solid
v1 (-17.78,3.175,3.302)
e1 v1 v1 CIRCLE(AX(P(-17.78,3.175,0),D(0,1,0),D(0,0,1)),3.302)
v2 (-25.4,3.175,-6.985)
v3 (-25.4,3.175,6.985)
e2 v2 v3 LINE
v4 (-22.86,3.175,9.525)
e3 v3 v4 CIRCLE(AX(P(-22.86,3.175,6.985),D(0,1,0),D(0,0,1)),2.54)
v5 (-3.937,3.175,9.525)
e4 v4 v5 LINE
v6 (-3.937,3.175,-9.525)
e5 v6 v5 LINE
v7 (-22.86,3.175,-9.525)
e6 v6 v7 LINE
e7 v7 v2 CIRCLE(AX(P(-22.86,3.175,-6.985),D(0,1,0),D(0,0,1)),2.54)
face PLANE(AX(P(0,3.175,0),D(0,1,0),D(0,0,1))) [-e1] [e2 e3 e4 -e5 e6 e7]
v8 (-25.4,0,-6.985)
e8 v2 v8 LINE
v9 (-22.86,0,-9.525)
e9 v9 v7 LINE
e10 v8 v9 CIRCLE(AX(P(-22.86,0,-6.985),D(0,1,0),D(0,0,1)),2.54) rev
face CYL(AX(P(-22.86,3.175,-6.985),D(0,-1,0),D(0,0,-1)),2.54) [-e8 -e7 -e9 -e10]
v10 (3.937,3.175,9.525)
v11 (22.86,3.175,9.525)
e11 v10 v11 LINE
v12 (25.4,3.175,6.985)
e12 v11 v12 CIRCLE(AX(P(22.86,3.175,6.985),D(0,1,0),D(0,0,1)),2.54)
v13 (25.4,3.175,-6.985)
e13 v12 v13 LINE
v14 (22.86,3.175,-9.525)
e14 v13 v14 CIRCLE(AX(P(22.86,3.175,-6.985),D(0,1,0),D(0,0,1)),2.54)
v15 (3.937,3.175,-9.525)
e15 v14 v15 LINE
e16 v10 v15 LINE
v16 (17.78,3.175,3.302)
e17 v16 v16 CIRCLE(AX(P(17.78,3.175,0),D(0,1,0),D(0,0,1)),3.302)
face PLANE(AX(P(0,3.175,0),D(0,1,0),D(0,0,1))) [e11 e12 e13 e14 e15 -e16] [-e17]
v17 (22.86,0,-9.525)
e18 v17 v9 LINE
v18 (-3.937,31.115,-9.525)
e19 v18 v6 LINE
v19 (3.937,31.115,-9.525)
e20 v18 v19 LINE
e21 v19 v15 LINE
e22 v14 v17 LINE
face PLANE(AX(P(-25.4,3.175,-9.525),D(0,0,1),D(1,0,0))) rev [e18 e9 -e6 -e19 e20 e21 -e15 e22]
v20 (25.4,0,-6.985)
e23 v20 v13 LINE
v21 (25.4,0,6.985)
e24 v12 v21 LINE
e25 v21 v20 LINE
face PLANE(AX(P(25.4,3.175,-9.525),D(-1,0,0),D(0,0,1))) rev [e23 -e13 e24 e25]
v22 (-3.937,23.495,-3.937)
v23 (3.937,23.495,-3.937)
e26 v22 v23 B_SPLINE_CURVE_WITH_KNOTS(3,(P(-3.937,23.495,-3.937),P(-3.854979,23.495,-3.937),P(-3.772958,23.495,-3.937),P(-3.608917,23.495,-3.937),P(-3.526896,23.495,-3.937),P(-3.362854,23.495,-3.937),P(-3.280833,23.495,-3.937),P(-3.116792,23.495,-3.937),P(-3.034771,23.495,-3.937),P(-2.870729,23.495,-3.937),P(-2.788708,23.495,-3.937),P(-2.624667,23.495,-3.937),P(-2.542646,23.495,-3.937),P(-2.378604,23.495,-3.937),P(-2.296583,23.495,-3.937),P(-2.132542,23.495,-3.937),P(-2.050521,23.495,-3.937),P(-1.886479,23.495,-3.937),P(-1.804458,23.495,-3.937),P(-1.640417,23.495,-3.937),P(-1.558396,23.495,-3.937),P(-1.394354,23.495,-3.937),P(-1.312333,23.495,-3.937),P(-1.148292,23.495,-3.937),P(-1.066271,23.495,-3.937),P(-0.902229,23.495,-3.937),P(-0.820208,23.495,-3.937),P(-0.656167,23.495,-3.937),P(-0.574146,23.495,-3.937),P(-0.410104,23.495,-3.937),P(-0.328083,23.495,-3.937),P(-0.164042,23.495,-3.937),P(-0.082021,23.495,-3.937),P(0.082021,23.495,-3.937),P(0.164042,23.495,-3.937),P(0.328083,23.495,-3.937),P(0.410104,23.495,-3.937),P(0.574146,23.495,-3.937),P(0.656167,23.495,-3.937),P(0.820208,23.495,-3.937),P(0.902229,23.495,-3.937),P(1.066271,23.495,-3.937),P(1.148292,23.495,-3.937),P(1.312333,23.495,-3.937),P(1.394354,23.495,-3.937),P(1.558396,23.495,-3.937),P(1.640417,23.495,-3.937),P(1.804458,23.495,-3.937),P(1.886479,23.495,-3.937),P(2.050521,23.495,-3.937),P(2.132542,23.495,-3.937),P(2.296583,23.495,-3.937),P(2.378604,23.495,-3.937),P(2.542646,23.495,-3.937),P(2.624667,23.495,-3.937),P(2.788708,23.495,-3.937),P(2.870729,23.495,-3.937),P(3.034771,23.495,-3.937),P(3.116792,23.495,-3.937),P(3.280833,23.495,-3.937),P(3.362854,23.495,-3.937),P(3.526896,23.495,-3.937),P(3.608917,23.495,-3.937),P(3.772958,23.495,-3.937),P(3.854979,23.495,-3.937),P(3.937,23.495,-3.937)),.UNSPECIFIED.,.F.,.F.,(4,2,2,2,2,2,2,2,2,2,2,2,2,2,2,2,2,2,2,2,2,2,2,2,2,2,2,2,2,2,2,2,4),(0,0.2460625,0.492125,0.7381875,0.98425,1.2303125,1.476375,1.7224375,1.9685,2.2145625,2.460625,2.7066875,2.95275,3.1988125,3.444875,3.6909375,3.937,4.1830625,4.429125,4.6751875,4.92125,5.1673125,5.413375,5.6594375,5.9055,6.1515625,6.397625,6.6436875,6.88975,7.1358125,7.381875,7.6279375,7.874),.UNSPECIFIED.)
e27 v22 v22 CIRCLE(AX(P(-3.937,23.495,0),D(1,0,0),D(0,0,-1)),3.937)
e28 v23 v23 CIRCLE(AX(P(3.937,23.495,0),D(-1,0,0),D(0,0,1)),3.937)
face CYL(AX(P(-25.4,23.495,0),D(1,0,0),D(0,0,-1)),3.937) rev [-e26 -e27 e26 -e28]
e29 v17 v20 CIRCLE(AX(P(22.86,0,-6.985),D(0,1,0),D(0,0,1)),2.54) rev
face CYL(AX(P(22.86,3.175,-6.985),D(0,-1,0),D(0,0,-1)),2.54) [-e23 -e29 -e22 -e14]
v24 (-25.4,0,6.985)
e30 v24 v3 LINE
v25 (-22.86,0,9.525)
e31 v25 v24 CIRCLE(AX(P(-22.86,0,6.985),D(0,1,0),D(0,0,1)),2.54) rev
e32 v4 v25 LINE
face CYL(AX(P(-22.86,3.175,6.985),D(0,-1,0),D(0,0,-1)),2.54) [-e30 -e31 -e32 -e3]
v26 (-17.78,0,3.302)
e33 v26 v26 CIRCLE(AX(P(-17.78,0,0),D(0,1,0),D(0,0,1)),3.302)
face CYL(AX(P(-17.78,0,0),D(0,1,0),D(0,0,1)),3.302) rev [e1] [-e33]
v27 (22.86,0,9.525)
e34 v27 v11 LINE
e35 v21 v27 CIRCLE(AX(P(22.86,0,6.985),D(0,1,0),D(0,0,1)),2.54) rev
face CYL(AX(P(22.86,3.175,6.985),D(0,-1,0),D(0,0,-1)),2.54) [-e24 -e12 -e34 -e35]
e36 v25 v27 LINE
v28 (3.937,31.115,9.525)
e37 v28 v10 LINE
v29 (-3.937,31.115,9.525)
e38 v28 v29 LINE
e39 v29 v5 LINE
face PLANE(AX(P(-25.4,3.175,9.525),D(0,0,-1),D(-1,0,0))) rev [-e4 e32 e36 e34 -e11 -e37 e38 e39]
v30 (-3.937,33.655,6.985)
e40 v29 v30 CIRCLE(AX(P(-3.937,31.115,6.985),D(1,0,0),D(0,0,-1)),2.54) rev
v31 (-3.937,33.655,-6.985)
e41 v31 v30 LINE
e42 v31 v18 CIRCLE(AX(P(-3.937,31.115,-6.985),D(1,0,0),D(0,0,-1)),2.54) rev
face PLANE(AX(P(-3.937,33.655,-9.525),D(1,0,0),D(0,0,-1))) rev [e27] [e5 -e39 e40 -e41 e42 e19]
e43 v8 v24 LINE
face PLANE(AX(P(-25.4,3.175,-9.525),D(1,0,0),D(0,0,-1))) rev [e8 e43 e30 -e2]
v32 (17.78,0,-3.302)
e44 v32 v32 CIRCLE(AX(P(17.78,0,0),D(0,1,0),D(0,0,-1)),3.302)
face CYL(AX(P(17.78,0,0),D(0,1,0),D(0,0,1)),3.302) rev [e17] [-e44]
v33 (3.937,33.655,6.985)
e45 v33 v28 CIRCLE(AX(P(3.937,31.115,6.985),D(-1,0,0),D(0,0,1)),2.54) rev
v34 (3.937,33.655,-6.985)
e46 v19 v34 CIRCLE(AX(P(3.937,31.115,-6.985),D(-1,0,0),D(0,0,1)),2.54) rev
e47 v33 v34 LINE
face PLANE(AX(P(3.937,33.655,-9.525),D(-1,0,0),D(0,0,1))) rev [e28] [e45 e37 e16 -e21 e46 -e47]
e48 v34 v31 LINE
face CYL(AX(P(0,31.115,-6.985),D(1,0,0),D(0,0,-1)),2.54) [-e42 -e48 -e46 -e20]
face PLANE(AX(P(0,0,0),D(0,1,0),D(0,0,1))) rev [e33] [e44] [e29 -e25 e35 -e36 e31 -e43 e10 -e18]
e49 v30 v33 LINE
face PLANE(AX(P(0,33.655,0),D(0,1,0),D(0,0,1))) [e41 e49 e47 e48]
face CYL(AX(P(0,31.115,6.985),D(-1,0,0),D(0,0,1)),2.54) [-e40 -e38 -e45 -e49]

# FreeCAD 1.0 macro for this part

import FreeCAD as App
import Part
import Sketcher
from FreeCAD import Vector
Q = App.Units.Quantity


def edges_at(feature, points):
    """Names of the edges that pass closest to the given points."""
    edges = feature.Shape.Edges
    near = lambda p: min(range(len(edges)), key=lambda i: edges[i].distToShape(Part.Vertex(*p))[0])
    return sorted({f"Edge{near(p) + 1}" for p in points})

doc = App.newDocument("Part")
body = doc.addObject("PartDesign::Body", "Body")

sketch1 = body.newObject("Sketcher::SketchObject", "Sketch")
sketch1.AttachmentSupport = (doc.getObject("XZ_Plane"), [""])
sketch1.MapMode = "FlatFace"
sketch1.addGeometry(Part.LineSegment(Vector(-25.4, -9.525, 0), Vector(-25.4, 9.525, 0)), False)
sketch1.addGeometry(Part.LineSegment(Vector(-25.4, 9.525, 0), Vector(25.4, 9.525, 0)), False)
sketch1.addGeometry(Part.LineSegment(Vector(25.4, 9.525, 0), Vector(25.4, -9.525, 0)), False)
sketch1.addGeometry(Part.LineSegment(Vector(25.4, -9.525, 0), Vector(-25.4, -9.525, 0)), False)
sketch1.addConstraint(Sketcher.Constraint("Coincident", 0, 2, 1, 1))
sketch1.addConstraint(Sketcher.Constraint("Coincident", 1, 2, 2, 1))
sketch1.addConstraint(Sketcher.Constraint("Coincident", 2, 2, 3, 1))
sketch1.addConstraint(Sketcher.Constraint("Coincident", 3, 2, 0, 1))
sketch1.addConstraint(Sketcher.Constraint("Vertical", 0))
sketch1.addConstraint(Sketcher.Constraint("Horizontal", 1))
sketch1.addConstraint(Sketcher.Constraint("Vertical", 2))
sketch1.addConstraint(Sketcher.Constraint("Horizontal", 3))
sketch1.addConstraint(Sketcher.Constraint("Symmetric", 0, 2, 2, 2, -1, 1))
sketch1.addConstraint(Sketcher.Constraint("DistanceX", 1, 1, 1, 2, Q("2 in")))
sketch1.addConstraint(Sketcher.Constraint("DistanceY", 0, 1, 0, 2, Q("0.75 in")))
pad1 = body.newObject("PartDesign::Pad", "Pad")
pad1.Profile = sketch1
pad1.Length = Q("0.125 in")
pad1.Reversed = True

sketch2 = body.newObject("Sketcher::SketchObject", "Sketch001")
sketch2.AttachmentSupport = (doc.getObject("XZ_Plane"), [""])
sketch2.MapMode = "FlatFace"
sketch2.AttachmentOffset = App.Placement(Vector(0, 0, -0.125 * 25.4), App.Rotation())
sketch2.addGeometry(Part.LineSegment(Vector(-3.937, -9.525, 0), Vector(-3.937, 9.525, 0)), False)
sketch2.addGeometry(Part.LineSegment(Vector(-3.937, 9.525, 0), Vector(3.937, 9.525, 0)), False)
sketch2.addGeometry(Part.LineSegment(Vector(3.937, 9.525, 0), Vector(3.937, -9.525, 0)), False)
sketch2.addGeometry(Part.LineSegment(Vector(3.937, -9.525, 0), Vector(-3.937, -9.525, 0)), False)
sketch2.addConstraint(Sketcher.Constraint("Coincident", 0, 2, 1, 1))
sketch2.addConstraint(Sketcher.Constraint("Coincident", 1, 2, 2, 1))
sketch2.addConstraint(Sketcher.Constraint("Coincident", 2, 2, 3, 1))
sketch2.addConstraint(Sketcher.Constraint("Coincident", 3, 2, 0, 1))
sketch2.addConstraint(Sketcher.Constraint("Vertical", 0))
sketch2.addConstraint(Sketcher.Constraint("Horizontal", 1))
sketch2.addConstraint(Sketcher.Constraint("Vertical", 2))
sketch2.addConstraint(Sketcher.Constraint("Horizontal", 3))
sketch2.addConstraint(Sketcher.Constraint("Symmetric", 0, 2, 2, 2, -1, 1))
sketch2.addConstraint(Sketcher.Constraint("DistanceX", 1, 1, 1, 2, Q("0.31 in")))
sketch2.addConstraint(Sketcher.Constraint("DistanceY", 0, 1, 0, 2, Q("0.75 in")))
pad2 = body.newObject("PartDesign::Pad", "Pad001")
pad2.Profile = sketch2
pad2.Length = Q("1.2 in")
pad2.Reversed = True

sketch3 = body.newObject("Sketcher::SketchObject", "Sketch002")
sketch3.AttachmentSupport = (doc.getObject("YZ_Plane"), [""])
sketch3.MapMode = "FlatFace"
sketch3.AttachmentOffset = App.Placement(Vector(0, 0, 0.155 * 25.4), App.Rotation())
sketch3.addGeometry(Part.Circle(Vector(23.495, 0, 0), Vector(0, 0, 1), 3.937), False)
sketch3.addConstraint(Sketcher.Constraint("PointOnObject", 0, 3, -1))
sketch3.addConstraint(Sketcher.Constraint("Diameter", 0, Q("0.31 in")))
sketch3.addConstraint(Sketcher.Constraint("DistanceX", -1, 1, 0, 3, Q("0.925 in")))
pocket1 = body.newObject("PartDesign::Pocket", "Pocket")
pocket1.Profile = sketch3
pocket1.Type = "ThroughAll"
pocket1.Midplane = True

sketch4 = body.newObject("Sketcher::SketchObject", "Sketch003")
sketch4.AttachmentSupport = (doc.getObject("XZ_Plane"), [""])
sketch4.MapMode = "FlatFace"
sketch4.AttachmentOffset = App.Placement(Vector(0, 0, -0.125 * 25.4), App.Rotation())
sketch4.addGeometry(Part.Circle(Vector(-17.78, 0, 0), Vector(0, 0, 1), 3.302), False)
sketch4.addGeometry(Part.Circle(Vector(17.78, 0, 0), Vector(0, 0, 1), 3.302), False)
sketch4.addConstraint(Sketcher.Constraint("Equal", 0, 1))
sketch4.addConstraint(Sketcher.Constraint("Symmetric", 0, 3, 1, 3, -1, 1))
sketch4.addConstraint(Sketcher.Constraint("PointOnObject", 0, 3, -1))
sketch4.addConstraint(Sketcher.Constraint("Diameter", 0, Q("0.26 in")))
sketch4.addConstraint(Sketcher.Constraint("DistanceX", 0, 3, -1, 1, Q("0.7 in")))
pocket2 = body.newObject("PartDesign::Pocket", "Pocket001")
pocket2.Profile = sketch4
pocket2.Type = "ThroughAll"
pocket2.Midplane = True
doc.recompute()

fillet = body.newObject("PartDesign::Fillet", "Fillet")
fillet.Base = (pocket2, edges_at(pocket2, [
    (0, 33.655, -9.525),
    (0, 33.655, 9.525),
    (25.4, 1.587, 9.525),
    (-25.4, 1.587, 9.525),
    (-25.4, 1.587, -9.525),
    (25.4, 1.587, -9.525),
]))
fillet.Radius = Q("0.1 in")

doc.recompute()
